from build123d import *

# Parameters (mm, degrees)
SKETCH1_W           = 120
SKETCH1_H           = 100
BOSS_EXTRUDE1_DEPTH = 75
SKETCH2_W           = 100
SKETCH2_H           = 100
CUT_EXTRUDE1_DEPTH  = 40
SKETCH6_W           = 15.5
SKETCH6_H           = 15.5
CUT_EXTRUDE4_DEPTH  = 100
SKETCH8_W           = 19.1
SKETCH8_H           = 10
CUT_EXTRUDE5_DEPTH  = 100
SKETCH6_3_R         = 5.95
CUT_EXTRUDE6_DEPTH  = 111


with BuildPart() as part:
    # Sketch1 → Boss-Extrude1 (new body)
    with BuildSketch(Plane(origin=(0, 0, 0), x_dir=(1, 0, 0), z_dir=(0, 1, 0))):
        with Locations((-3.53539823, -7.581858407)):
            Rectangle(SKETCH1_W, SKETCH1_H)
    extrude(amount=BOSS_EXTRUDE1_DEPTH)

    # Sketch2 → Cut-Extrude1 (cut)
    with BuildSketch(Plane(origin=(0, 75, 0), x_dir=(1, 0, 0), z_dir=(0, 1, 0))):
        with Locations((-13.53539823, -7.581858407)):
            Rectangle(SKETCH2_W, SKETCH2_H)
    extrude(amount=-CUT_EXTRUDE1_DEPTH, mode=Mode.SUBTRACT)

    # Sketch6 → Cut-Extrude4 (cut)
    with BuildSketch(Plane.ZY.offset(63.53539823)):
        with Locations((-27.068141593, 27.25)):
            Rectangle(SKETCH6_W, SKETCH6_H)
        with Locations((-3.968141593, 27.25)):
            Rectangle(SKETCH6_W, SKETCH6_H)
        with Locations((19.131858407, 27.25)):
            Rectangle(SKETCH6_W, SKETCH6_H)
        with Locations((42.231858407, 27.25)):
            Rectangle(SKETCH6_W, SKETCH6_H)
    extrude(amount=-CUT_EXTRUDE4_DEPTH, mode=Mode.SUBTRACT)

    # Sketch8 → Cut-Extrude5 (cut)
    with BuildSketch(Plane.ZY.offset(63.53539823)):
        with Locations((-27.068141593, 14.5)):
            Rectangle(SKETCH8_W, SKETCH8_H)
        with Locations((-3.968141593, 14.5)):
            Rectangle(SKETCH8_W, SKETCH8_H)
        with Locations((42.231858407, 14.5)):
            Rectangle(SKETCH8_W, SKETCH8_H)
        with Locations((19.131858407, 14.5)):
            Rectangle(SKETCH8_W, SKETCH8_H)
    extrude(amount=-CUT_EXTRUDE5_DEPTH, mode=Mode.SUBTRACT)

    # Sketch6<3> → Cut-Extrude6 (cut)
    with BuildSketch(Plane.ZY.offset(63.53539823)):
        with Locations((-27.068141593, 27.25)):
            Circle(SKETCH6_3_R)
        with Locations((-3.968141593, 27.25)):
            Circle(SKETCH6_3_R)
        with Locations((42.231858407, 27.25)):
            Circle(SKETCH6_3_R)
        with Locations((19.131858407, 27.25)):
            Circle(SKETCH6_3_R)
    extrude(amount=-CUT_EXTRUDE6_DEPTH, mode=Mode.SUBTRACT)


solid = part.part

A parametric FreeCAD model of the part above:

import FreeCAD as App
import Part
import Sketcher
from FreeCAD import Vector
Q = App.Units.Quantity


def add_polygon(sketch, points):
    """Adds a closed chain of lines whose ends are joined by coincident constraints."""
    first, n = sketch.GeometryCount, len(points)
    for a, b in zip(points, points[1:] + points[:1]):
        sketch.addGeometry(Part.LineSegment(App.Vector(*a, 0), App.Vector(*b, 0)), False)
    for i in range(n):
        sketch.addConstraint(Sketcher.Constraint("Coincident", first + i, 2, first + (i + 1) % n, 1))

doc = App.newDocument("Part")
body = doc.addObject("PartDesign::Body", "Body")

# Sketch on XZ plane
sketch1 = body.newObject("Sketcher::SketchObject", "Sketch")
sketch1.AttachmentSupport = (doc.getObject("XZ_Plane"), [""])
sketch1.MapMode = "FlatFace"
add_polygon(sketch1, [(-63.535398, -42.418142), (-63.535398, 57.581858), (56.464602, 57.581858), (56.464602, -42.418142)])  # lines 0-3
sketch1.addConstraint([
    Sketcher.Constraint("Vertical", 0),
    Sketcher.Constraint("Horizontal", 1),
    Sketcher.Constraint("Vertical", 2),
    Sketcher.Constraint("Horizontal", 3),
    Sketcher.Constraint("DistanceX", 1, 1, 1, 2, Q("120 mm")),
    Sketcher.Constraint("DistanceY", 0, 1, 0, 2, Q("100 mm")),
    Sketcher.Constraint("DistanceX", 0, 2, -1, 1, Q("63.535398 mm")),
    Sketcher.Constraint("DistanceY", -1, 1, 0, 2, Q("57.581858 mm")),
])
pad1 = body.newObject("PartDesign::Pad", "Pad")
pad1.Profile = sketch1
pad1.Length = 75
pad1.Reversed = True

# Sketch on XZ plane
sketch2 = body.newObject("Sketcher::SketchObject", "Sketch001")
sketch2.AttachmentSupport = (doc.getObject("XZ_Plane"), [""])
sketch2.MapMode = "FlatFace"
sketch2.AttachmentOffset = App.Placement(Vector(0, 0, -75), App.Rotation())
add_polygon(sketch2, [(-63.535398, -42.418142), (-63.535398, 57.581858), (36.464602, 57.581858), (36.464602, -42.418142)])  # lines 0-3
sketch2.addConstraint([
    Sketcher.Constraint("Vertical", 0),
    Sketcher.Constraint("Horizontal", 1),
    Sketcher.Constraint("Vertical", 2),
    Sketcher.Constraint("Horizontal", 3),
    Sketcher.Constraint("Equal", 3, 0),
    Sketcher.Constraint("DistanceX", 1, 1, 1, 2, Q("100 mm")),
    Sketcher.Constraint("DistanceX", 0, 2, -1, 1, Q("63.535398 mm")),
    Sketcher.Constraint("DistanceY", -1, 1, 0, 2, Q("57.581858 mm")),
])
pocket1 = body.newObject("PartDesign::Pocket", "Pocket")
pocket1.Profile = sketch2
pocket1.Length = 40
pocket1.Reversed = True

# Sketch on YZ plane
sketch3 = body.newObject("Sketcher::SketchObject", "Sketch002")
sketch3.AttachmentSupport = (doc.getObject("YZ_Plane"), [""])
sketch3.MapMode = "FlatFace"
sketch3.AttachmentOffset = App.Placement(Vector(0, 0, -63.535398), App.Rotation())
add_polygon(sketch3, [(35, -34.818142), (19.5, -34.818142), (19.5, -19.318142), (35, -19.318142)])  # lines 0-3
add_polygon(sketch3, [(35, -11.718142), (19.5, -11.718142), (19.5, 3.781858), (35, 3.781858)])  # lines 4-7
add_polygon(sketch3, [(35, 11.381858), (19.5, 11.381858), (19.5, 26.881858), (35, 26.881858)])  # lines 8-11
add_polygon(sketch3, [(35, 34.481858), (19.5, 34.481858), (19.5, 49.981858), (35, 49.981858)])  # lines 12-15
sketch3.addConstraint([
    Sketcher.Constraint("Horizontal", 0),
    Sketcher.Constraint("Vertical", 1),
    Sketcher.Constraint("Horizontal", 2),
    Sketcher.Constraint("Vertical", 3),
    Sketcher.Constraint("Horizontal", 4),
    Sketcher.Constraint("Vertical", 5),
    Sketcher.Constraint("Horizontal", 6),
    Sketcher.Constraint("Vertical", 7),
    Sketcher.Constraint("Horizontal", 8),
    Sketcher.Constraint("Vertical", 9),
    Sketcher.Constraint("Horizontal", 10),
    Sketcher.Constraint("Vertical", 11),
    Sketcher.Constraint("Horizontal", 12),
    Sketcher.Constraint("Vertical", 13),
    Sketcher.Constraint("Horizontal", 14),
    Sketcher.Constraint("Vertical", 15),
    Sketcher.Constraint("Vertical", 1, 2, 4, 2),
    Sketcher.Constraint("Vertical", 3, 2, 6, 2),
    Sketcher.Constraint("Vertical", 5, 2, 8, 2),
    Sketcher.Constraint("Vertical", 7, 2, 10, 2),
    Sketcher.Constraint("Vertical", 9, 2, 12, 2),
    Sketcher.Constraint("Vertical", 11, 2, 14, 2),
    Sketcher.Constraint("Equal", 14, 1),
    Sketcher.Constraint("Equal", 3, 5),
    Sketcher.Constraint("Equal", 7, 9),
    Sketcher.Constraint("Equal", 11, 13),
    Sketcher.Constraint("DistanceX", 0, 2, 0, 1, Q("15.5 mm")),
    Sketcher.Constraint("DistanceX", -1, 1, 2, 2, Q("35 mm")),
    Sketcher.Constraint("DistanceY", 1, 2, 4, 2, Q("7.6 mm")),
    Sketcher.Constraint("DistanceY", 5, 2, 8, 2, Q("7.6 mm")),
    Sketcher.Constraint("DistanceY", 9, 2, 12, 2, Q("7.6 mm")),
    Sketcher.Constraint("DistanceY", 0, 2, -1, 1, Q("34.818142 mm")),
])
pocket2 = body.newObject("PartDesign::Pocket", "Pocket001")
pocket2.Profile = sketch3
pocket2.Length = 100
pocket2.Reversed = True

# Sketch on YZ plane
sketch4 = body.newObject("Sketcher::SketchObject", "Sketch003")
sketch4.AttachmentSupport = (doc.getObject("YZ_Plane"), [""])
sketch4.MapMode = "FlatFace"
sketch4.AttachmentOffset = App.Placement(Vector(0, 0, -63.535398), App.Rotation())
add_polygon(sketch4, [(19.5, -36.618142), (9.5, -36.618142), (9.5, -17.518142), (19.5, -17.518142)])  # lines 0-3
add_polygon(sketch4, [(19.5, -13.518142), (9.5, -13.518142), (9.5, 5.581858), (19.5, 5.581858)])  # lines 4-7
add_polygon(sketch4, [(19.5, 32.681858), (9.5, 32.681858), (9.5, 51.781858), (19.5, 51.781858)])  # lines 8-11
add_polygon(sketch4, [(19.5, 9.581858), (9.5, 9.581858), (9.5, 28.681858), (19.5, 28.681858)])  # lines 12-15
sketch4.addConstraint([
    Sketcher.Constraint("Horizontal", 0),
    Sketcher.Constraint("Vertical", 1),
    Sketcher.Constraint("Horizontal", 2),
    Sketcher.Constraint("Vertical", 3),
    Sketcher.Constraint("Horizontal", 4),
    Sketcher.Constraint("Vertical", 5),
    Sketcher.Constraint("Horizontal", 6),
    Sketcher.Constraint("Vertical", 7),
    Sketcher.Constraint("Horizontal", 8),
    Sketcher.Constraint("Vertical", 9),
    Sketcher.Constraint("Horizontal", 10),
    Sketcher.Constraint("Vertical", 11),
    Sketcher.Constraint("Horizontal", 12),
    Sketcher.Constraint("Vertical", 13),
    Sketcher.Constraint("Horizontal", 14),
    Sketcher.Constraint("Vertical", 15),
    Sketcher.Constraint("Vertical", 1, 2, 4, 2),
    Sketcher.Constraint("Vertical", 3, 2, 6, 2),
    Sketcher.Constraint("Vertical", 5, 2, 8, 2),
    Sketcher.Constraint("Vertical", 7, 2, 10, 2),
    Sketcher.Constraint("Vertical", 9, 2, 12, 2),
    Sketcher.Constraint("Vertical", 11, 2, 14, 2),
    Sketcher.Constraint("Equal", 3, 5),
    Sketcher.Constraint("Equal", 7, 9),
    Sketcher.Constraint("Equal", 11, 13),
    Sketcher.Constraint("DistanceX", 0, 2, 0, 1, Q("10 mm")),
    Sketcher.Constraint("DistanceY", 1, 1, 1, 2, Q("19.1 mm")),
    Sketcher.Constraint("DistanceY", 1, 2, 4, 2, Q("4 mm")),
    Sketcher.Constraint("DistanceY", 5, 2, 12, 2, Q("4 mm")),
    Sketcher.Constraint("DistanceY", 13, 2, 8, 2, Q("4 mm")),
    Sketcher.Constraint("DistanceX", -1, 1, 0, 2, Q("9.5 mm")),
    Sketcher.Constraint("DistanceY", 0, 2, -1, 1, Q("36.618142 mm")),
])
pocket3 = body.newObject("PartDesign::Pocket", "Pocket002")
pocket3.Profile = sketch4
pocket3.Length = 100
pocket3.Reversed = True

# Sketch on YZ plane
sketch5 = body.newObject("Sketcher::SketchObject", "Sketch004")
sketch5.AttachmentSupport = (doc.getObject("YZ_Plane"), [""])
sketch5.MapMode = "FlatFace"
sketch5.AttachmentOffset = App.Placement(Vector(0, 0, -63.535398), App.Rotation())
sketch5.addGeometry([
    Part.Circle(Vector(27.25, -27.068142, 0), Vector(0, 0, 1), 5.95),
    Part.Circle(Vector(27.25, -3.968142, 0), Vector(0, 0, 1), 5.95),
    Part.Circle(Vector(27.25, 42.231858, 0), Vector(0, 0, 1), 5.95),
    Part.Circle(Vector(27.25, 19.131858, 0), Vector(0, 0, 1), 5.95),
], False)
sketch5.addConstraint([
    Sketcher.Constraint("Equal", 0, 1),
    Sketcher.Constraint("Equal", 1, 2),
    Sketcher.Constraint("Equal", 2, 3),
    Sketcher.Constraint("Vertical", 0, 3, 1, 3),
    Sketcher.Constraint("Vertical", 1, 3, 2, 3),
    Sketcher.Constraint("Vertical", 2, 3, 3, 3),
    Sketcher.Constraint("Diameter", 0, Q("11.9 mm")),
    Sketcher.Constraint("DistanceY", 0, 3, 1, 3, Q("23.1 mm")),
    Sketcher.Constraint("DistanceY", 1, 3, 2, 3, Q("46.2 mm")),
    Sketcher.Constraint("DistanceY", 1, 3, 3, 3, Q("23.1 mm")),
    Sketcher.Constraint("DistanceX", -1, 1, 0, 3, Q("27.25 mm")),
    Sketcher.Constraint("DistanceY", 0, 3, -1, 1, Q("27.068142 mm")),
])
pocket4 = body.newObject("PartDesign::Pocket", "Pocket003")
pocket4.Profile = sketch5
pocket4.Length = 111
pocket4.Reversed = True

doc.recompute()
